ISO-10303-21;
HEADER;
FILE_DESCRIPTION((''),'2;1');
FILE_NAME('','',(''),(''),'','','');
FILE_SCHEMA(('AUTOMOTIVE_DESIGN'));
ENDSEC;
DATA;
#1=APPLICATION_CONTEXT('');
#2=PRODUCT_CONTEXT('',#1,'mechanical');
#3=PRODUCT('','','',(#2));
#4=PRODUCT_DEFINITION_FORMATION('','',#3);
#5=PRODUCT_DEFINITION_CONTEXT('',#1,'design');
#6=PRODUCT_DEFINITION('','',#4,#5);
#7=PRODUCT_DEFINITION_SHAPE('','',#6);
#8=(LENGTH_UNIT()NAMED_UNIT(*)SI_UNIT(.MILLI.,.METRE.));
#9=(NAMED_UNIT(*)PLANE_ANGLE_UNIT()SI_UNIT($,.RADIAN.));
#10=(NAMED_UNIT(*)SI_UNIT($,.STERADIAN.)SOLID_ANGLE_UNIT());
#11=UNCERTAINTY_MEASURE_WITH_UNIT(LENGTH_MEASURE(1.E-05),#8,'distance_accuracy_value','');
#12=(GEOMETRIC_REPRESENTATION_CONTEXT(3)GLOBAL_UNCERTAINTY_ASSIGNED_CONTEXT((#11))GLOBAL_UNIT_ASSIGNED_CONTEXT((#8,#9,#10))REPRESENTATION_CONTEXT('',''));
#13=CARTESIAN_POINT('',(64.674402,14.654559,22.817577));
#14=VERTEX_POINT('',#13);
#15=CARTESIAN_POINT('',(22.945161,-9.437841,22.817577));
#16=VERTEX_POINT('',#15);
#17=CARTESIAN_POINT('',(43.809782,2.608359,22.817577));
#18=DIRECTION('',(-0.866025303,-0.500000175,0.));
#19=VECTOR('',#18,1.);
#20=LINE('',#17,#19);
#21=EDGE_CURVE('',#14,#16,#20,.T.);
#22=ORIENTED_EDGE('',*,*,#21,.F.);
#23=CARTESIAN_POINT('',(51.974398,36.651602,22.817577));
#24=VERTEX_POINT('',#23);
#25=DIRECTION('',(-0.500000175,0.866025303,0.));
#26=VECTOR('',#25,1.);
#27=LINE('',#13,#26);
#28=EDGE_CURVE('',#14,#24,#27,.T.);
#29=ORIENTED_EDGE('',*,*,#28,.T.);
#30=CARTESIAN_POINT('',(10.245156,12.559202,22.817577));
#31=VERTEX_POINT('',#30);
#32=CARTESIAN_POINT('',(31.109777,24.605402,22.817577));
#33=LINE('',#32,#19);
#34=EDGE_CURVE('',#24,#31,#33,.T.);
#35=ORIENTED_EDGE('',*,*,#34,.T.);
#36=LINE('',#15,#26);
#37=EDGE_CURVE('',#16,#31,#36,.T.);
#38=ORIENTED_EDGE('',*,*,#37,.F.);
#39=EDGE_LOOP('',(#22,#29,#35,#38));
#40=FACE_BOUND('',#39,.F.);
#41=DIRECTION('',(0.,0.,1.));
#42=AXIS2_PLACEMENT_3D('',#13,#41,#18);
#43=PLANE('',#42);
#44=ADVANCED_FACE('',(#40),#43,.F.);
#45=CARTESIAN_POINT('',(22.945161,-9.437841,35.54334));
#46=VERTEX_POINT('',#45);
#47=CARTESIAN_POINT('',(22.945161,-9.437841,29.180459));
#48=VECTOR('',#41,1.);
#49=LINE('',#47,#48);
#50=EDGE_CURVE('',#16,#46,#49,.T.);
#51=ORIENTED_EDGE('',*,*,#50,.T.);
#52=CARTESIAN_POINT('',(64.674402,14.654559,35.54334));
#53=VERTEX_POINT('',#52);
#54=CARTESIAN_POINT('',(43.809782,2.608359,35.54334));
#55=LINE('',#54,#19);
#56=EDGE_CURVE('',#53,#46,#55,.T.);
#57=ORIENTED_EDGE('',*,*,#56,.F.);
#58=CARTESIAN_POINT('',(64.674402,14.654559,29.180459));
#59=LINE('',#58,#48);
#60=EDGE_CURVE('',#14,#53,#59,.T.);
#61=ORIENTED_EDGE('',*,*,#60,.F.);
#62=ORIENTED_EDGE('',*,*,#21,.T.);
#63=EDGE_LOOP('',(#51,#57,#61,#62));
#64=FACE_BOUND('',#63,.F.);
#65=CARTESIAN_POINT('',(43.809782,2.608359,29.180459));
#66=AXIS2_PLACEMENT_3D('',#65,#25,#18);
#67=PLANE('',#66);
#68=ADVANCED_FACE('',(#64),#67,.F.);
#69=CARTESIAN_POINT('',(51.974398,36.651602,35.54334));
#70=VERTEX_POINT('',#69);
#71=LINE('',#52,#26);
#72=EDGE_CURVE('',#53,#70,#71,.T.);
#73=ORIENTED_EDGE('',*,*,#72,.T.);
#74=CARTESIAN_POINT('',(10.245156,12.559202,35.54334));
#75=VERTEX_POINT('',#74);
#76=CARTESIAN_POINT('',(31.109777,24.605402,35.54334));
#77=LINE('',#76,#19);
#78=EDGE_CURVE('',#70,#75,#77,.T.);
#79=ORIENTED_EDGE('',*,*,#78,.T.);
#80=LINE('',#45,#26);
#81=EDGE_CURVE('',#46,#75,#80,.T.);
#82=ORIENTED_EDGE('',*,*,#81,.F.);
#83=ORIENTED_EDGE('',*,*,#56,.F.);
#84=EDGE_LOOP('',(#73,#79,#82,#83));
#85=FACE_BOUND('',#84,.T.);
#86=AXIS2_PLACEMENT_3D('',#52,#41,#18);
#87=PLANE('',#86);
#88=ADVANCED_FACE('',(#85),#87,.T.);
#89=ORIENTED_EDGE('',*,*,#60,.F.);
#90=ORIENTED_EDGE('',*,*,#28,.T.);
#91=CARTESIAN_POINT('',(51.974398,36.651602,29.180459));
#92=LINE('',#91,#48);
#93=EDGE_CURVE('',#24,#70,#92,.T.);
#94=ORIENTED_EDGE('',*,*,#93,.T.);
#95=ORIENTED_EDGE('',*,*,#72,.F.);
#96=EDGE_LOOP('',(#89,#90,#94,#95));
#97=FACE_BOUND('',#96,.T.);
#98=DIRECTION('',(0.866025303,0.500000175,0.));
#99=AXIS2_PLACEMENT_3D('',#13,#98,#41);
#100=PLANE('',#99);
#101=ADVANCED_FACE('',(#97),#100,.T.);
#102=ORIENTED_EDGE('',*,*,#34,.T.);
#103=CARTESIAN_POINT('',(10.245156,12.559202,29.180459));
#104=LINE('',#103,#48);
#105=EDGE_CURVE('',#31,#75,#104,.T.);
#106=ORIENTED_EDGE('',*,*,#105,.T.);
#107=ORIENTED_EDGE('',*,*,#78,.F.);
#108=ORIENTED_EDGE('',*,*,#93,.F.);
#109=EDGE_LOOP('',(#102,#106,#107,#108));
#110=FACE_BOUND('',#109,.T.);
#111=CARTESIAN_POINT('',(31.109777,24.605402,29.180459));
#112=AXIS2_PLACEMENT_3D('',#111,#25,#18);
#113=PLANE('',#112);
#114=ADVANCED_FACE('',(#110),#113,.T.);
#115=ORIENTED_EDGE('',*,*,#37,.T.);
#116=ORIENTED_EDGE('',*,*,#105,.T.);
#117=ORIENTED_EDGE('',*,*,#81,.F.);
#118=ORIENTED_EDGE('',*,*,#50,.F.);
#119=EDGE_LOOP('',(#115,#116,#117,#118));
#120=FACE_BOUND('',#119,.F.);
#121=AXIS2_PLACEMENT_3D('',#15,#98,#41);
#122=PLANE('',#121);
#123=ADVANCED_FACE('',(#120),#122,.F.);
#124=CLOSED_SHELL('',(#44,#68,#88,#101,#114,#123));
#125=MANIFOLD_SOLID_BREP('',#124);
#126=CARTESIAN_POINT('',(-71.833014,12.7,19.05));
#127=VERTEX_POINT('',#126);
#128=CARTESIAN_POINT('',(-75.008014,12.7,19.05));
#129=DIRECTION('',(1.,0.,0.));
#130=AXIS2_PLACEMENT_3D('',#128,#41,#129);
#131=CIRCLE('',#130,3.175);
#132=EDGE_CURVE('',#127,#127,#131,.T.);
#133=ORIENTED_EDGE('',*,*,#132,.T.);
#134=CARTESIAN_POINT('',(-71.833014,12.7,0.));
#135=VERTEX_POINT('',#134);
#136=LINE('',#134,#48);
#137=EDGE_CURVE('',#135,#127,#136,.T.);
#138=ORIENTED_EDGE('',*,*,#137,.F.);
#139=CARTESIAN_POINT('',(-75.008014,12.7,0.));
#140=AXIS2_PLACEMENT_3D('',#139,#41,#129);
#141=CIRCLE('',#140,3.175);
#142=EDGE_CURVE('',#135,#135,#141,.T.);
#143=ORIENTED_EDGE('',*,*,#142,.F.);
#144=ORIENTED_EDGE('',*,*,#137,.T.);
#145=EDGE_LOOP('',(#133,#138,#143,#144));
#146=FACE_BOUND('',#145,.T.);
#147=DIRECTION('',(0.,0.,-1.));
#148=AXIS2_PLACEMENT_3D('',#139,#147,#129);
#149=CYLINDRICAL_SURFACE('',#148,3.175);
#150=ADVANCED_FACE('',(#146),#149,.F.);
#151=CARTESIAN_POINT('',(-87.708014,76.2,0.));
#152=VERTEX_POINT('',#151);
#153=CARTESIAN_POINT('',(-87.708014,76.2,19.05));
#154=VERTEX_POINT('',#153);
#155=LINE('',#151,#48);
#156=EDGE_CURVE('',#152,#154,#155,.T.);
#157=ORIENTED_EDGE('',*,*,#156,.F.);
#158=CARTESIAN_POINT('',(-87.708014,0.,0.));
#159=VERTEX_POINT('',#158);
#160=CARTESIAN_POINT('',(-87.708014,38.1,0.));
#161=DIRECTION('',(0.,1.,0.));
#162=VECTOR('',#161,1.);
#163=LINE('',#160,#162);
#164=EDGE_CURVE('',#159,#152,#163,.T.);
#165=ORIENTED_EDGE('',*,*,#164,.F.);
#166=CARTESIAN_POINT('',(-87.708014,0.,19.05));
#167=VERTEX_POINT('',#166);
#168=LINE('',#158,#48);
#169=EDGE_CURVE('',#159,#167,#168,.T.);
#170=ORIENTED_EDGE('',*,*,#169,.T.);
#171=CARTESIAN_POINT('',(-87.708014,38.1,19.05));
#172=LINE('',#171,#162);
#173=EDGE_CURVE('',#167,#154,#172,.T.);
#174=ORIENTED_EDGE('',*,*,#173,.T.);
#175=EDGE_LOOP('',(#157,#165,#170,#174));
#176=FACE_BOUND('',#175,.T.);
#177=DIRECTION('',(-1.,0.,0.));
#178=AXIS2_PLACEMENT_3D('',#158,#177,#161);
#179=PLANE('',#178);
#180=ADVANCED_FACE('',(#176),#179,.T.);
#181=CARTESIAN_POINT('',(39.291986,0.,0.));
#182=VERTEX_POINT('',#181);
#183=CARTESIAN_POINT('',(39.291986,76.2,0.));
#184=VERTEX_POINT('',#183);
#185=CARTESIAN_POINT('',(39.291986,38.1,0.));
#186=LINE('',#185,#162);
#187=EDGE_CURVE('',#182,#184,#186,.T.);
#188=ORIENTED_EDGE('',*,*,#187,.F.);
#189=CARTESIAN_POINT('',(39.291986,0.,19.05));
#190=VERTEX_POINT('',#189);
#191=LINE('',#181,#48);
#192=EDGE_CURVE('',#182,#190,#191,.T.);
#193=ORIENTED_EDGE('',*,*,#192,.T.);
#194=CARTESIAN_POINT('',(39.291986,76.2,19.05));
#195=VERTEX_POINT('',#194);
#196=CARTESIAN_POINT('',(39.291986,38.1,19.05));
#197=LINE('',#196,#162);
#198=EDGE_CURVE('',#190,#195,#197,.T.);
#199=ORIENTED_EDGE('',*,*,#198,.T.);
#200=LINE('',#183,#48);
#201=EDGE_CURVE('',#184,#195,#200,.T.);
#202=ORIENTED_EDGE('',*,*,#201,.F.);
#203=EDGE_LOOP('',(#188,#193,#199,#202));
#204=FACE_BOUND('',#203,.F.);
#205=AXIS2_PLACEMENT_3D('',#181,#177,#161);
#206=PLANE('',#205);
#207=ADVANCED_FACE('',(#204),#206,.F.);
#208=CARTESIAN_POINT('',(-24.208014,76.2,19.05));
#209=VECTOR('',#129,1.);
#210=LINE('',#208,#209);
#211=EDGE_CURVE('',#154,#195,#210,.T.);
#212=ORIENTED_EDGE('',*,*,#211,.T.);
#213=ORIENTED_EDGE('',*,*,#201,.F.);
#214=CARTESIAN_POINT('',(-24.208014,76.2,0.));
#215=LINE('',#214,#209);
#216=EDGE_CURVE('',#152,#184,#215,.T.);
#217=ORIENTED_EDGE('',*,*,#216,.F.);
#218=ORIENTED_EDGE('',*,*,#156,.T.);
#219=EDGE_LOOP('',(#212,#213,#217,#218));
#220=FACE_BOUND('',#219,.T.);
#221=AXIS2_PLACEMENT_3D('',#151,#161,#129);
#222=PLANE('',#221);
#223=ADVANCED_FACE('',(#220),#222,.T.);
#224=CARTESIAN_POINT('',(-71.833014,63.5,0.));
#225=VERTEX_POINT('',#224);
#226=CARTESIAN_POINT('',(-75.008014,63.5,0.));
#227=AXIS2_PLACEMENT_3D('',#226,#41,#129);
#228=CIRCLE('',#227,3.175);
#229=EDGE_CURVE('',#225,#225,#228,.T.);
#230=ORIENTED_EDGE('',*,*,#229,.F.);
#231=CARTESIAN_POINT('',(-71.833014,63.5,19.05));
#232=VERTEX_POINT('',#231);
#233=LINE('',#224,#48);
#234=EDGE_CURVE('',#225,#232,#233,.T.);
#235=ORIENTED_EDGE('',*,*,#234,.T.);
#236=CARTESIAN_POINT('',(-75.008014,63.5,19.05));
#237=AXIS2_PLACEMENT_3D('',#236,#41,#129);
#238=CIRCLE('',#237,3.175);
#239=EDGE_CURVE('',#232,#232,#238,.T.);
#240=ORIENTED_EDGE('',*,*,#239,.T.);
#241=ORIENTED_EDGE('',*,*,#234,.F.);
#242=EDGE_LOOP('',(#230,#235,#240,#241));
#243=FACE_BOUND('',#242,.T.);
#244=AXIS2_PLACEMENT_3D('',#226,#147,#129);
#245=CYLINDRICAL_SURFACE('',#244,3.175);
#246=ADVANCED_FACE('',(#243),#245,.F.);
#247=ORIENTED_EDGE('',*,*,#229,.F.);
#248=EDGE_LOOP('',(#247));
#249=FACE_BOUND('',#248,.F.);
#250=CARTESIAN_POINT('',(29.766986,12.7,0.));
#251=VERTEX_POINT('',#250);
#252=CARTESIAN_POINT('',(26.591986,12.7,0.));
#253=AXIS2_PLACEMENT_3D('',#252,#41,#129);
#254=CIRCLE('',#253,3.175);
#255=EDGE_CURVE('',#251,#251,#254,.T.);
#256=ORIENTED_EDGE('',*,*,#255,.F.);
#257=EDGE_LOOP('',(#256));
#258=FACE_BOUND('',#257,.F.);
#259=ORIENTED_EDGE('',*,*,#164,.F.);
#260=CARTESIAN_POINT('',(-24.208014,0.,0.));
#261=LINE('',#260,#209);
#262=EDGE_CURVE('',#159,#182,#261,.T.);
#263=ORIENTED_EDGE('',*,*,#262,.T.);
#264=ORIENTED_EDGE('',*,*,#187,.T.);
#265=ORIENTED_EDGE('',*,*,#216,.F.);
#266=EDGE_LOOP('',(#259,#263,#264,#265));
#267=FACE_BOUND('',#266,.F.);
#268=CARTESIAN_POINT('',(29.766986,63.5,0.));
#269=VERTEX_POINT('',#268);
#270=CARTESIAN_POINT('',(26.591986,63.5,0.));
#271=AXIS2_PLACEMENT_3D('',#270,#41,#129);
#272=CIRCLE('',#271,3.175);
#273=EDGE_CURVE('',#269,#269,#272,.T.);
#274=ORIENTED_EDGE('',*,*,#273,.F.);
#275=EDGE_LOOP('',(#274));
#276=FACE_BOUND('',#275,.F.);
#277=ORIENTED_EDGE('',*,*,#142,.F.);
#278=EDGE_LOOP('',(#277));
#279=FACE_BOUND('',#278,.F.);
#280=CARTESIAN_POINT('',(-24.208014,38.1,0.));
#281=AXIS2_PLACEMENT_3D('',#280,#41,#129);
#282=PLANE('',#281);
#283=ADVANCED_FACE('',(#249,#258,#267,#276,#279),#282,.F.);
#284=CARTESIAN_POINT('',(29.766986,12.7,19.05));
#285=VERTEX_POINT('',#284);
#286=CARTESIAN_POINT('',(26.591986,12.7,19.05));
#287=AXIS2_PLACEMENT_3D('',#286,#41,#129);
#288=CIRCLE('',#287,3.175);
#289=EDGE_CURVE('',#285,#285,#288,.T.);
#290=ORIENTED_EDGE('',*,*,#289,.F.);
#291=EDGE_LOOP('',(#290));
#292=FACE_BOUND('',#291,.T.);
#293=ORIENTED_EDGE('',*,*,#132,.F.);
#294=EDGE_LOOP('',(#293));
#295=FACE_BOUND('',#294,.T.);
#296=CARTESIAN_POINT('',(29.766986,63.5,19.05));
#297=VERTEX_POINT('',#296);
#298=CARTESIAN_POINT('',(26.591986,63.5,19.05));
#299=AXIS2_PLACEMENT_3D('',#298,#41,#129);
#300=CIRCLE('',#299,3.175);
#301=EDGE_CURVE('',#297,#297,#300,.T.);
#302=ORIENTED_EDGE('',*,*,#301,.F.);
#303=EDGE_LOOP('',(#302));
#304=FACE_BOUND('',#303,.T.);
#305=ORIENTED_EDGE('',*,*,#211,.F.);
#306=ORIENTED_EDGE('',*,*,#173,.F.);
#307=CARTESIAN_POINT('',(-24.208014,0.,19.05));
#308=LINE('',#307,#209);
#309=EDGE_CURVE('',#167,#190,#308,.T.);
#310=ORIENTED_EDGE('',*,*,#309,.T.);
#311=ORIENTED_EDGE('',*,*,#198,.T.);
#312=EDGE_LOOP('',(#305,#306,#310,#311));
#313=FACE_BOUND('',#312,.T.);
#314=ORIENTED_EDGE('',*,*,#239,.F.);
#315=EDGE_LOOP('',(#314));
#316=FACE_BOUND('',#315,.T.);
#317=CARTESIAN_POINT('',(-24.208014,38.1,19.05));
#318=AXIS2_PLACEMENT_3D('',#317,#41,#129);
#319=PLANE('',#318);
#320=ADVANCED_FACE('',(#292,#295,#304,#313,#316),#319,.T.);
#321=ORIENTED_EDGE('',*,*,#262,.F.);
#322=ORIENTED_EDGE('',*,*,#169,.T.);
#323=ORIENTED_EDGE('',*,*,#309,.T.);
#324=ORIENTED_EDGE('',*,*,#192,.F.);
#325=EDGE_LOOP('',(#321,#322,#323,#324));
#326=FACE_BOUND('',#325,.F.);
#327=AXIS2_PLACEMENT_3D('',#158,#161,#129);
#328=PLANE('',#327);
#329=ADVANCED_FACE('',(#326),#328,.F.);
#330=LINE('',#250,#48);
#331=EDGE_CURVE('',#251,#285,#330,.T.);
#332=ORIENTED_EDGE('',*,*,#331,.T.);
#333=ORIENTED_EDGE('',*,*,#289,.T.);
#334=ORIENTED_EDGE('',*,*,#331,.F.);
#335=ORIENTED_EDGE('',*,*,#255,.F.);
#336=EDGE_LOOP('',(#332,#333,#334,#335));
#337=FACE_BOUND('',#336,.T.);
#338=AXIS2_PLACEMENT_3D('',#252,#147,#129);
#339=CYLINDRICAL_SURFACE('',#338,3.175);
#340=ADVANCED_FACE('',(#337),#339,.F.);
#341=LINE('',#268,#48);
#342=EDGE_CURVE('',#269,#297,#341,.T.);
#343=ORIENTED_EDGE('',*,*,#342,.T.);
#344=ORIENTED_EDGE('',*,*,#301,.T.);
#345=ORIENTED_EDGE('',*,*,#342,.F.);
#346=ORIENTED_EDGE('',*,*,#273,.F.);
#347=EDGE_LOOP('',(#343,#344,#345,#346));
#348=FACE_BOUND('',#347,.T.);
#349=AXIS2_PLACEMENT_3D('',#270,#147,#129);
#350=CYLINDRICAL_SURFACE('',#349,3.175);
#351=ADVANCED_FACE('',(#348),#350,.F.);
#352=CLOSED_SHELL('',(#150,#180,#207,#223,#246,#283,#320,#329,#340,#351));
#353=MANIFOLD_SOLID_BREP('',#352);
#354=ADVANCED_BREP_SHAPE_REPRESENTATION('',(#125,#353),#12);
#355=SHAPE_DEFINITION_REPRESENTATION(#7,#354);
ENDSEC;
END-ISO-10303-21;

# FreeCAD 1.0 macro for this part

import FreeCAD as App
import Part
import Sketcher

V = App.Vector
Q = App.Units.Quantity

doc = App.newDocument("Part")
body = doc.addObject("PartDesign::Body", "Body")

# Sketch on XY plane
sketch1 = body.newObject("Sketcher::SketchObject", "Sketch")
sketch1.AttachmentSupport = (doc.getObject("XY_Plane"), [""])
sketch1.MapMode = "FlatFace"
sketch1.addGeometry([
    Part.LineSegment(V(-87.7, 76.2, 0), V(-87.7, 0, 0)),  # 0
    Part.LineSegment(V(-87.7, 0, 0), V(39.3, 0, 0)),  # 1
    Part.LineSegment(V(39.3, 0, 0), V(39.3, 76.2, 0)),  # 2
    Part.LineSegment(V(39.3, 76.2, 0), V(-87.7, 76.2, 0)),  # 3
    Part.Circle(V(-75, 12.7, 0), V(0, 0, 1), 3.2),  # 4
    Part.Circle(V(26.6, 12.7, 0), V(0, 0, 1), 3.2),  # 5
    Part.Circle(V(-75, 63.5, 0), V(0, 0, 1), 3.2),  # 6
    Part.Circle(V(26.6, 63.5, 0), V(0, 0, 1), 3.2),  # 7
], False)
sketch1.addConstraint([
    Sketcher.Constraint("Coincident", 0, 2, 1, 1),
    Sketcher.Constraint("Coincident", 1, 2, 2, 1),
    Sketcher.Constraint("Coincident", 2, 2, 3, 1),
    Sketcher.Constraint("Coincident", 3, 2, 0, 1),
    Sketcher.Constraint("Vertical", 0),
    Sketcher.Constraint("Horizontal", 1),
    Sketcher.Constraint("Vertical", 2),
    Sketcher.Constraint("Horizontal", 3),
    Sketcher.Constraint("Equal", 4, 5),
    Sketcher.Constraint("Equal", 5, 6),
    Sketcher.Constraint("Equal", 6, 7),
    Sketcher.Constraint("PointOnObject", 0, 2, -1),
    Sketcher.Constraint("Horizontal", 4, 3, 5, 3),
    Sketcher.Constraint("Horizontal", 6, 3, 7, 3),
    Sketcher.Constraint("Vertical", 4, 3, 6, 3),
    Sketcher.Constraint("Vertical", 5, 3, 7, 3),
    Sketcher.Constraint("Diameter", 4, Q("0.25 in")),
    Sketcher.Constraint("DistanceX", 1, 1, 1, 2, Q("5 in")),
    Sketcher.Constraint("DistanceY", 0, 2, 0, 1, Q("3 in")),
    Sketcher.Constraint("DistanceX", 4, 3, 5, 3, Q("4 in")),
    Sketcher.Constraint("DistanceY", 4, 3, 6, 3, Q("2 in")),
    Sketcher.Constraint("DistanceY", -1, 1, 4, 3, Q("0.5 in")),
    Sketcher.Constraint("DistanceX", 0, 2, 4, 3, Q("0.5 in")),
    Sketcher.Constraint("DistanceX", 4, 3, -1, 1, Q("75.008014 mm")),
])
pad1 = body.newObject("PartDesign::Pad", "Pad")
pad1.Profile = sketch1
pad1.Length = Q("0.75 in")
body2 = doc.addObject("PartDesign::Body", "Body001")

# Sketch on an angled plane
sketch2 = body2.newObject("Sketcher::SketchObject", "Sketch001")
sketch2.Placement = App.Placement(V(9.822997, -17.013929, 0), App.Rotation(V(-0.866025303, -0.500000175, 0), V(0, 0, 1), V(-0.500000175, 0.866025303, 0), "ZXY"))
sketch2.addGeometry([
    Part.LineSegment(V(-63, 36, 0), V(-63, 23, 0)),
    Part.LineSegment(V(-63, 23, 0), V(-15, 23, 0)),
    Part.LineSegment(V(-15, 23, 0), V(-15, 36, 0)),
    Part.LineSegment(V(-15, 36, 0), V(-63, 36, 0)),
], False)
sketch2.addConstraint([
    Sketcher.Constraint("Coincident", 0, 2, 1, 1),
    Sketcher.Constraint("Coincident", 1, 2, 2, 1),
    Sketcher.Constraint("Coincident", 2, 2, 3, 1),
    Sketcher.Constraint("Coincident", 3, 2, 0, 1),
    Sketcher.Constraint("Vertical", 0),
    Sketcher.Constraint("Horizontal", 1),
    Sketcher.Constraint("Vertical", 2),
    Sketcher.Constraint("Horizontal", 3),
    Sketcher.Constraint("DistanceX", 1, 1, 1, 2, Q("48.184783 mm")),
    Sketcher.Constraint("DistanceY", 0, 2, 0, 1, Q("12.725763 mm")),
    Sketcher.Constraint("DistanceX", 1, 2, -1, 1, Q("15.152172 mm")),
    Sketcher.Constraint("DistanceY", -1, 1, 2, 2, Q("35.543341 mm")),
])
pad2 = body2.newObject("PartDesign::Pad", "Pad001")
pad2.Profile = sketch2
pad2.Length = Q("1 in")

doc.recompute()
